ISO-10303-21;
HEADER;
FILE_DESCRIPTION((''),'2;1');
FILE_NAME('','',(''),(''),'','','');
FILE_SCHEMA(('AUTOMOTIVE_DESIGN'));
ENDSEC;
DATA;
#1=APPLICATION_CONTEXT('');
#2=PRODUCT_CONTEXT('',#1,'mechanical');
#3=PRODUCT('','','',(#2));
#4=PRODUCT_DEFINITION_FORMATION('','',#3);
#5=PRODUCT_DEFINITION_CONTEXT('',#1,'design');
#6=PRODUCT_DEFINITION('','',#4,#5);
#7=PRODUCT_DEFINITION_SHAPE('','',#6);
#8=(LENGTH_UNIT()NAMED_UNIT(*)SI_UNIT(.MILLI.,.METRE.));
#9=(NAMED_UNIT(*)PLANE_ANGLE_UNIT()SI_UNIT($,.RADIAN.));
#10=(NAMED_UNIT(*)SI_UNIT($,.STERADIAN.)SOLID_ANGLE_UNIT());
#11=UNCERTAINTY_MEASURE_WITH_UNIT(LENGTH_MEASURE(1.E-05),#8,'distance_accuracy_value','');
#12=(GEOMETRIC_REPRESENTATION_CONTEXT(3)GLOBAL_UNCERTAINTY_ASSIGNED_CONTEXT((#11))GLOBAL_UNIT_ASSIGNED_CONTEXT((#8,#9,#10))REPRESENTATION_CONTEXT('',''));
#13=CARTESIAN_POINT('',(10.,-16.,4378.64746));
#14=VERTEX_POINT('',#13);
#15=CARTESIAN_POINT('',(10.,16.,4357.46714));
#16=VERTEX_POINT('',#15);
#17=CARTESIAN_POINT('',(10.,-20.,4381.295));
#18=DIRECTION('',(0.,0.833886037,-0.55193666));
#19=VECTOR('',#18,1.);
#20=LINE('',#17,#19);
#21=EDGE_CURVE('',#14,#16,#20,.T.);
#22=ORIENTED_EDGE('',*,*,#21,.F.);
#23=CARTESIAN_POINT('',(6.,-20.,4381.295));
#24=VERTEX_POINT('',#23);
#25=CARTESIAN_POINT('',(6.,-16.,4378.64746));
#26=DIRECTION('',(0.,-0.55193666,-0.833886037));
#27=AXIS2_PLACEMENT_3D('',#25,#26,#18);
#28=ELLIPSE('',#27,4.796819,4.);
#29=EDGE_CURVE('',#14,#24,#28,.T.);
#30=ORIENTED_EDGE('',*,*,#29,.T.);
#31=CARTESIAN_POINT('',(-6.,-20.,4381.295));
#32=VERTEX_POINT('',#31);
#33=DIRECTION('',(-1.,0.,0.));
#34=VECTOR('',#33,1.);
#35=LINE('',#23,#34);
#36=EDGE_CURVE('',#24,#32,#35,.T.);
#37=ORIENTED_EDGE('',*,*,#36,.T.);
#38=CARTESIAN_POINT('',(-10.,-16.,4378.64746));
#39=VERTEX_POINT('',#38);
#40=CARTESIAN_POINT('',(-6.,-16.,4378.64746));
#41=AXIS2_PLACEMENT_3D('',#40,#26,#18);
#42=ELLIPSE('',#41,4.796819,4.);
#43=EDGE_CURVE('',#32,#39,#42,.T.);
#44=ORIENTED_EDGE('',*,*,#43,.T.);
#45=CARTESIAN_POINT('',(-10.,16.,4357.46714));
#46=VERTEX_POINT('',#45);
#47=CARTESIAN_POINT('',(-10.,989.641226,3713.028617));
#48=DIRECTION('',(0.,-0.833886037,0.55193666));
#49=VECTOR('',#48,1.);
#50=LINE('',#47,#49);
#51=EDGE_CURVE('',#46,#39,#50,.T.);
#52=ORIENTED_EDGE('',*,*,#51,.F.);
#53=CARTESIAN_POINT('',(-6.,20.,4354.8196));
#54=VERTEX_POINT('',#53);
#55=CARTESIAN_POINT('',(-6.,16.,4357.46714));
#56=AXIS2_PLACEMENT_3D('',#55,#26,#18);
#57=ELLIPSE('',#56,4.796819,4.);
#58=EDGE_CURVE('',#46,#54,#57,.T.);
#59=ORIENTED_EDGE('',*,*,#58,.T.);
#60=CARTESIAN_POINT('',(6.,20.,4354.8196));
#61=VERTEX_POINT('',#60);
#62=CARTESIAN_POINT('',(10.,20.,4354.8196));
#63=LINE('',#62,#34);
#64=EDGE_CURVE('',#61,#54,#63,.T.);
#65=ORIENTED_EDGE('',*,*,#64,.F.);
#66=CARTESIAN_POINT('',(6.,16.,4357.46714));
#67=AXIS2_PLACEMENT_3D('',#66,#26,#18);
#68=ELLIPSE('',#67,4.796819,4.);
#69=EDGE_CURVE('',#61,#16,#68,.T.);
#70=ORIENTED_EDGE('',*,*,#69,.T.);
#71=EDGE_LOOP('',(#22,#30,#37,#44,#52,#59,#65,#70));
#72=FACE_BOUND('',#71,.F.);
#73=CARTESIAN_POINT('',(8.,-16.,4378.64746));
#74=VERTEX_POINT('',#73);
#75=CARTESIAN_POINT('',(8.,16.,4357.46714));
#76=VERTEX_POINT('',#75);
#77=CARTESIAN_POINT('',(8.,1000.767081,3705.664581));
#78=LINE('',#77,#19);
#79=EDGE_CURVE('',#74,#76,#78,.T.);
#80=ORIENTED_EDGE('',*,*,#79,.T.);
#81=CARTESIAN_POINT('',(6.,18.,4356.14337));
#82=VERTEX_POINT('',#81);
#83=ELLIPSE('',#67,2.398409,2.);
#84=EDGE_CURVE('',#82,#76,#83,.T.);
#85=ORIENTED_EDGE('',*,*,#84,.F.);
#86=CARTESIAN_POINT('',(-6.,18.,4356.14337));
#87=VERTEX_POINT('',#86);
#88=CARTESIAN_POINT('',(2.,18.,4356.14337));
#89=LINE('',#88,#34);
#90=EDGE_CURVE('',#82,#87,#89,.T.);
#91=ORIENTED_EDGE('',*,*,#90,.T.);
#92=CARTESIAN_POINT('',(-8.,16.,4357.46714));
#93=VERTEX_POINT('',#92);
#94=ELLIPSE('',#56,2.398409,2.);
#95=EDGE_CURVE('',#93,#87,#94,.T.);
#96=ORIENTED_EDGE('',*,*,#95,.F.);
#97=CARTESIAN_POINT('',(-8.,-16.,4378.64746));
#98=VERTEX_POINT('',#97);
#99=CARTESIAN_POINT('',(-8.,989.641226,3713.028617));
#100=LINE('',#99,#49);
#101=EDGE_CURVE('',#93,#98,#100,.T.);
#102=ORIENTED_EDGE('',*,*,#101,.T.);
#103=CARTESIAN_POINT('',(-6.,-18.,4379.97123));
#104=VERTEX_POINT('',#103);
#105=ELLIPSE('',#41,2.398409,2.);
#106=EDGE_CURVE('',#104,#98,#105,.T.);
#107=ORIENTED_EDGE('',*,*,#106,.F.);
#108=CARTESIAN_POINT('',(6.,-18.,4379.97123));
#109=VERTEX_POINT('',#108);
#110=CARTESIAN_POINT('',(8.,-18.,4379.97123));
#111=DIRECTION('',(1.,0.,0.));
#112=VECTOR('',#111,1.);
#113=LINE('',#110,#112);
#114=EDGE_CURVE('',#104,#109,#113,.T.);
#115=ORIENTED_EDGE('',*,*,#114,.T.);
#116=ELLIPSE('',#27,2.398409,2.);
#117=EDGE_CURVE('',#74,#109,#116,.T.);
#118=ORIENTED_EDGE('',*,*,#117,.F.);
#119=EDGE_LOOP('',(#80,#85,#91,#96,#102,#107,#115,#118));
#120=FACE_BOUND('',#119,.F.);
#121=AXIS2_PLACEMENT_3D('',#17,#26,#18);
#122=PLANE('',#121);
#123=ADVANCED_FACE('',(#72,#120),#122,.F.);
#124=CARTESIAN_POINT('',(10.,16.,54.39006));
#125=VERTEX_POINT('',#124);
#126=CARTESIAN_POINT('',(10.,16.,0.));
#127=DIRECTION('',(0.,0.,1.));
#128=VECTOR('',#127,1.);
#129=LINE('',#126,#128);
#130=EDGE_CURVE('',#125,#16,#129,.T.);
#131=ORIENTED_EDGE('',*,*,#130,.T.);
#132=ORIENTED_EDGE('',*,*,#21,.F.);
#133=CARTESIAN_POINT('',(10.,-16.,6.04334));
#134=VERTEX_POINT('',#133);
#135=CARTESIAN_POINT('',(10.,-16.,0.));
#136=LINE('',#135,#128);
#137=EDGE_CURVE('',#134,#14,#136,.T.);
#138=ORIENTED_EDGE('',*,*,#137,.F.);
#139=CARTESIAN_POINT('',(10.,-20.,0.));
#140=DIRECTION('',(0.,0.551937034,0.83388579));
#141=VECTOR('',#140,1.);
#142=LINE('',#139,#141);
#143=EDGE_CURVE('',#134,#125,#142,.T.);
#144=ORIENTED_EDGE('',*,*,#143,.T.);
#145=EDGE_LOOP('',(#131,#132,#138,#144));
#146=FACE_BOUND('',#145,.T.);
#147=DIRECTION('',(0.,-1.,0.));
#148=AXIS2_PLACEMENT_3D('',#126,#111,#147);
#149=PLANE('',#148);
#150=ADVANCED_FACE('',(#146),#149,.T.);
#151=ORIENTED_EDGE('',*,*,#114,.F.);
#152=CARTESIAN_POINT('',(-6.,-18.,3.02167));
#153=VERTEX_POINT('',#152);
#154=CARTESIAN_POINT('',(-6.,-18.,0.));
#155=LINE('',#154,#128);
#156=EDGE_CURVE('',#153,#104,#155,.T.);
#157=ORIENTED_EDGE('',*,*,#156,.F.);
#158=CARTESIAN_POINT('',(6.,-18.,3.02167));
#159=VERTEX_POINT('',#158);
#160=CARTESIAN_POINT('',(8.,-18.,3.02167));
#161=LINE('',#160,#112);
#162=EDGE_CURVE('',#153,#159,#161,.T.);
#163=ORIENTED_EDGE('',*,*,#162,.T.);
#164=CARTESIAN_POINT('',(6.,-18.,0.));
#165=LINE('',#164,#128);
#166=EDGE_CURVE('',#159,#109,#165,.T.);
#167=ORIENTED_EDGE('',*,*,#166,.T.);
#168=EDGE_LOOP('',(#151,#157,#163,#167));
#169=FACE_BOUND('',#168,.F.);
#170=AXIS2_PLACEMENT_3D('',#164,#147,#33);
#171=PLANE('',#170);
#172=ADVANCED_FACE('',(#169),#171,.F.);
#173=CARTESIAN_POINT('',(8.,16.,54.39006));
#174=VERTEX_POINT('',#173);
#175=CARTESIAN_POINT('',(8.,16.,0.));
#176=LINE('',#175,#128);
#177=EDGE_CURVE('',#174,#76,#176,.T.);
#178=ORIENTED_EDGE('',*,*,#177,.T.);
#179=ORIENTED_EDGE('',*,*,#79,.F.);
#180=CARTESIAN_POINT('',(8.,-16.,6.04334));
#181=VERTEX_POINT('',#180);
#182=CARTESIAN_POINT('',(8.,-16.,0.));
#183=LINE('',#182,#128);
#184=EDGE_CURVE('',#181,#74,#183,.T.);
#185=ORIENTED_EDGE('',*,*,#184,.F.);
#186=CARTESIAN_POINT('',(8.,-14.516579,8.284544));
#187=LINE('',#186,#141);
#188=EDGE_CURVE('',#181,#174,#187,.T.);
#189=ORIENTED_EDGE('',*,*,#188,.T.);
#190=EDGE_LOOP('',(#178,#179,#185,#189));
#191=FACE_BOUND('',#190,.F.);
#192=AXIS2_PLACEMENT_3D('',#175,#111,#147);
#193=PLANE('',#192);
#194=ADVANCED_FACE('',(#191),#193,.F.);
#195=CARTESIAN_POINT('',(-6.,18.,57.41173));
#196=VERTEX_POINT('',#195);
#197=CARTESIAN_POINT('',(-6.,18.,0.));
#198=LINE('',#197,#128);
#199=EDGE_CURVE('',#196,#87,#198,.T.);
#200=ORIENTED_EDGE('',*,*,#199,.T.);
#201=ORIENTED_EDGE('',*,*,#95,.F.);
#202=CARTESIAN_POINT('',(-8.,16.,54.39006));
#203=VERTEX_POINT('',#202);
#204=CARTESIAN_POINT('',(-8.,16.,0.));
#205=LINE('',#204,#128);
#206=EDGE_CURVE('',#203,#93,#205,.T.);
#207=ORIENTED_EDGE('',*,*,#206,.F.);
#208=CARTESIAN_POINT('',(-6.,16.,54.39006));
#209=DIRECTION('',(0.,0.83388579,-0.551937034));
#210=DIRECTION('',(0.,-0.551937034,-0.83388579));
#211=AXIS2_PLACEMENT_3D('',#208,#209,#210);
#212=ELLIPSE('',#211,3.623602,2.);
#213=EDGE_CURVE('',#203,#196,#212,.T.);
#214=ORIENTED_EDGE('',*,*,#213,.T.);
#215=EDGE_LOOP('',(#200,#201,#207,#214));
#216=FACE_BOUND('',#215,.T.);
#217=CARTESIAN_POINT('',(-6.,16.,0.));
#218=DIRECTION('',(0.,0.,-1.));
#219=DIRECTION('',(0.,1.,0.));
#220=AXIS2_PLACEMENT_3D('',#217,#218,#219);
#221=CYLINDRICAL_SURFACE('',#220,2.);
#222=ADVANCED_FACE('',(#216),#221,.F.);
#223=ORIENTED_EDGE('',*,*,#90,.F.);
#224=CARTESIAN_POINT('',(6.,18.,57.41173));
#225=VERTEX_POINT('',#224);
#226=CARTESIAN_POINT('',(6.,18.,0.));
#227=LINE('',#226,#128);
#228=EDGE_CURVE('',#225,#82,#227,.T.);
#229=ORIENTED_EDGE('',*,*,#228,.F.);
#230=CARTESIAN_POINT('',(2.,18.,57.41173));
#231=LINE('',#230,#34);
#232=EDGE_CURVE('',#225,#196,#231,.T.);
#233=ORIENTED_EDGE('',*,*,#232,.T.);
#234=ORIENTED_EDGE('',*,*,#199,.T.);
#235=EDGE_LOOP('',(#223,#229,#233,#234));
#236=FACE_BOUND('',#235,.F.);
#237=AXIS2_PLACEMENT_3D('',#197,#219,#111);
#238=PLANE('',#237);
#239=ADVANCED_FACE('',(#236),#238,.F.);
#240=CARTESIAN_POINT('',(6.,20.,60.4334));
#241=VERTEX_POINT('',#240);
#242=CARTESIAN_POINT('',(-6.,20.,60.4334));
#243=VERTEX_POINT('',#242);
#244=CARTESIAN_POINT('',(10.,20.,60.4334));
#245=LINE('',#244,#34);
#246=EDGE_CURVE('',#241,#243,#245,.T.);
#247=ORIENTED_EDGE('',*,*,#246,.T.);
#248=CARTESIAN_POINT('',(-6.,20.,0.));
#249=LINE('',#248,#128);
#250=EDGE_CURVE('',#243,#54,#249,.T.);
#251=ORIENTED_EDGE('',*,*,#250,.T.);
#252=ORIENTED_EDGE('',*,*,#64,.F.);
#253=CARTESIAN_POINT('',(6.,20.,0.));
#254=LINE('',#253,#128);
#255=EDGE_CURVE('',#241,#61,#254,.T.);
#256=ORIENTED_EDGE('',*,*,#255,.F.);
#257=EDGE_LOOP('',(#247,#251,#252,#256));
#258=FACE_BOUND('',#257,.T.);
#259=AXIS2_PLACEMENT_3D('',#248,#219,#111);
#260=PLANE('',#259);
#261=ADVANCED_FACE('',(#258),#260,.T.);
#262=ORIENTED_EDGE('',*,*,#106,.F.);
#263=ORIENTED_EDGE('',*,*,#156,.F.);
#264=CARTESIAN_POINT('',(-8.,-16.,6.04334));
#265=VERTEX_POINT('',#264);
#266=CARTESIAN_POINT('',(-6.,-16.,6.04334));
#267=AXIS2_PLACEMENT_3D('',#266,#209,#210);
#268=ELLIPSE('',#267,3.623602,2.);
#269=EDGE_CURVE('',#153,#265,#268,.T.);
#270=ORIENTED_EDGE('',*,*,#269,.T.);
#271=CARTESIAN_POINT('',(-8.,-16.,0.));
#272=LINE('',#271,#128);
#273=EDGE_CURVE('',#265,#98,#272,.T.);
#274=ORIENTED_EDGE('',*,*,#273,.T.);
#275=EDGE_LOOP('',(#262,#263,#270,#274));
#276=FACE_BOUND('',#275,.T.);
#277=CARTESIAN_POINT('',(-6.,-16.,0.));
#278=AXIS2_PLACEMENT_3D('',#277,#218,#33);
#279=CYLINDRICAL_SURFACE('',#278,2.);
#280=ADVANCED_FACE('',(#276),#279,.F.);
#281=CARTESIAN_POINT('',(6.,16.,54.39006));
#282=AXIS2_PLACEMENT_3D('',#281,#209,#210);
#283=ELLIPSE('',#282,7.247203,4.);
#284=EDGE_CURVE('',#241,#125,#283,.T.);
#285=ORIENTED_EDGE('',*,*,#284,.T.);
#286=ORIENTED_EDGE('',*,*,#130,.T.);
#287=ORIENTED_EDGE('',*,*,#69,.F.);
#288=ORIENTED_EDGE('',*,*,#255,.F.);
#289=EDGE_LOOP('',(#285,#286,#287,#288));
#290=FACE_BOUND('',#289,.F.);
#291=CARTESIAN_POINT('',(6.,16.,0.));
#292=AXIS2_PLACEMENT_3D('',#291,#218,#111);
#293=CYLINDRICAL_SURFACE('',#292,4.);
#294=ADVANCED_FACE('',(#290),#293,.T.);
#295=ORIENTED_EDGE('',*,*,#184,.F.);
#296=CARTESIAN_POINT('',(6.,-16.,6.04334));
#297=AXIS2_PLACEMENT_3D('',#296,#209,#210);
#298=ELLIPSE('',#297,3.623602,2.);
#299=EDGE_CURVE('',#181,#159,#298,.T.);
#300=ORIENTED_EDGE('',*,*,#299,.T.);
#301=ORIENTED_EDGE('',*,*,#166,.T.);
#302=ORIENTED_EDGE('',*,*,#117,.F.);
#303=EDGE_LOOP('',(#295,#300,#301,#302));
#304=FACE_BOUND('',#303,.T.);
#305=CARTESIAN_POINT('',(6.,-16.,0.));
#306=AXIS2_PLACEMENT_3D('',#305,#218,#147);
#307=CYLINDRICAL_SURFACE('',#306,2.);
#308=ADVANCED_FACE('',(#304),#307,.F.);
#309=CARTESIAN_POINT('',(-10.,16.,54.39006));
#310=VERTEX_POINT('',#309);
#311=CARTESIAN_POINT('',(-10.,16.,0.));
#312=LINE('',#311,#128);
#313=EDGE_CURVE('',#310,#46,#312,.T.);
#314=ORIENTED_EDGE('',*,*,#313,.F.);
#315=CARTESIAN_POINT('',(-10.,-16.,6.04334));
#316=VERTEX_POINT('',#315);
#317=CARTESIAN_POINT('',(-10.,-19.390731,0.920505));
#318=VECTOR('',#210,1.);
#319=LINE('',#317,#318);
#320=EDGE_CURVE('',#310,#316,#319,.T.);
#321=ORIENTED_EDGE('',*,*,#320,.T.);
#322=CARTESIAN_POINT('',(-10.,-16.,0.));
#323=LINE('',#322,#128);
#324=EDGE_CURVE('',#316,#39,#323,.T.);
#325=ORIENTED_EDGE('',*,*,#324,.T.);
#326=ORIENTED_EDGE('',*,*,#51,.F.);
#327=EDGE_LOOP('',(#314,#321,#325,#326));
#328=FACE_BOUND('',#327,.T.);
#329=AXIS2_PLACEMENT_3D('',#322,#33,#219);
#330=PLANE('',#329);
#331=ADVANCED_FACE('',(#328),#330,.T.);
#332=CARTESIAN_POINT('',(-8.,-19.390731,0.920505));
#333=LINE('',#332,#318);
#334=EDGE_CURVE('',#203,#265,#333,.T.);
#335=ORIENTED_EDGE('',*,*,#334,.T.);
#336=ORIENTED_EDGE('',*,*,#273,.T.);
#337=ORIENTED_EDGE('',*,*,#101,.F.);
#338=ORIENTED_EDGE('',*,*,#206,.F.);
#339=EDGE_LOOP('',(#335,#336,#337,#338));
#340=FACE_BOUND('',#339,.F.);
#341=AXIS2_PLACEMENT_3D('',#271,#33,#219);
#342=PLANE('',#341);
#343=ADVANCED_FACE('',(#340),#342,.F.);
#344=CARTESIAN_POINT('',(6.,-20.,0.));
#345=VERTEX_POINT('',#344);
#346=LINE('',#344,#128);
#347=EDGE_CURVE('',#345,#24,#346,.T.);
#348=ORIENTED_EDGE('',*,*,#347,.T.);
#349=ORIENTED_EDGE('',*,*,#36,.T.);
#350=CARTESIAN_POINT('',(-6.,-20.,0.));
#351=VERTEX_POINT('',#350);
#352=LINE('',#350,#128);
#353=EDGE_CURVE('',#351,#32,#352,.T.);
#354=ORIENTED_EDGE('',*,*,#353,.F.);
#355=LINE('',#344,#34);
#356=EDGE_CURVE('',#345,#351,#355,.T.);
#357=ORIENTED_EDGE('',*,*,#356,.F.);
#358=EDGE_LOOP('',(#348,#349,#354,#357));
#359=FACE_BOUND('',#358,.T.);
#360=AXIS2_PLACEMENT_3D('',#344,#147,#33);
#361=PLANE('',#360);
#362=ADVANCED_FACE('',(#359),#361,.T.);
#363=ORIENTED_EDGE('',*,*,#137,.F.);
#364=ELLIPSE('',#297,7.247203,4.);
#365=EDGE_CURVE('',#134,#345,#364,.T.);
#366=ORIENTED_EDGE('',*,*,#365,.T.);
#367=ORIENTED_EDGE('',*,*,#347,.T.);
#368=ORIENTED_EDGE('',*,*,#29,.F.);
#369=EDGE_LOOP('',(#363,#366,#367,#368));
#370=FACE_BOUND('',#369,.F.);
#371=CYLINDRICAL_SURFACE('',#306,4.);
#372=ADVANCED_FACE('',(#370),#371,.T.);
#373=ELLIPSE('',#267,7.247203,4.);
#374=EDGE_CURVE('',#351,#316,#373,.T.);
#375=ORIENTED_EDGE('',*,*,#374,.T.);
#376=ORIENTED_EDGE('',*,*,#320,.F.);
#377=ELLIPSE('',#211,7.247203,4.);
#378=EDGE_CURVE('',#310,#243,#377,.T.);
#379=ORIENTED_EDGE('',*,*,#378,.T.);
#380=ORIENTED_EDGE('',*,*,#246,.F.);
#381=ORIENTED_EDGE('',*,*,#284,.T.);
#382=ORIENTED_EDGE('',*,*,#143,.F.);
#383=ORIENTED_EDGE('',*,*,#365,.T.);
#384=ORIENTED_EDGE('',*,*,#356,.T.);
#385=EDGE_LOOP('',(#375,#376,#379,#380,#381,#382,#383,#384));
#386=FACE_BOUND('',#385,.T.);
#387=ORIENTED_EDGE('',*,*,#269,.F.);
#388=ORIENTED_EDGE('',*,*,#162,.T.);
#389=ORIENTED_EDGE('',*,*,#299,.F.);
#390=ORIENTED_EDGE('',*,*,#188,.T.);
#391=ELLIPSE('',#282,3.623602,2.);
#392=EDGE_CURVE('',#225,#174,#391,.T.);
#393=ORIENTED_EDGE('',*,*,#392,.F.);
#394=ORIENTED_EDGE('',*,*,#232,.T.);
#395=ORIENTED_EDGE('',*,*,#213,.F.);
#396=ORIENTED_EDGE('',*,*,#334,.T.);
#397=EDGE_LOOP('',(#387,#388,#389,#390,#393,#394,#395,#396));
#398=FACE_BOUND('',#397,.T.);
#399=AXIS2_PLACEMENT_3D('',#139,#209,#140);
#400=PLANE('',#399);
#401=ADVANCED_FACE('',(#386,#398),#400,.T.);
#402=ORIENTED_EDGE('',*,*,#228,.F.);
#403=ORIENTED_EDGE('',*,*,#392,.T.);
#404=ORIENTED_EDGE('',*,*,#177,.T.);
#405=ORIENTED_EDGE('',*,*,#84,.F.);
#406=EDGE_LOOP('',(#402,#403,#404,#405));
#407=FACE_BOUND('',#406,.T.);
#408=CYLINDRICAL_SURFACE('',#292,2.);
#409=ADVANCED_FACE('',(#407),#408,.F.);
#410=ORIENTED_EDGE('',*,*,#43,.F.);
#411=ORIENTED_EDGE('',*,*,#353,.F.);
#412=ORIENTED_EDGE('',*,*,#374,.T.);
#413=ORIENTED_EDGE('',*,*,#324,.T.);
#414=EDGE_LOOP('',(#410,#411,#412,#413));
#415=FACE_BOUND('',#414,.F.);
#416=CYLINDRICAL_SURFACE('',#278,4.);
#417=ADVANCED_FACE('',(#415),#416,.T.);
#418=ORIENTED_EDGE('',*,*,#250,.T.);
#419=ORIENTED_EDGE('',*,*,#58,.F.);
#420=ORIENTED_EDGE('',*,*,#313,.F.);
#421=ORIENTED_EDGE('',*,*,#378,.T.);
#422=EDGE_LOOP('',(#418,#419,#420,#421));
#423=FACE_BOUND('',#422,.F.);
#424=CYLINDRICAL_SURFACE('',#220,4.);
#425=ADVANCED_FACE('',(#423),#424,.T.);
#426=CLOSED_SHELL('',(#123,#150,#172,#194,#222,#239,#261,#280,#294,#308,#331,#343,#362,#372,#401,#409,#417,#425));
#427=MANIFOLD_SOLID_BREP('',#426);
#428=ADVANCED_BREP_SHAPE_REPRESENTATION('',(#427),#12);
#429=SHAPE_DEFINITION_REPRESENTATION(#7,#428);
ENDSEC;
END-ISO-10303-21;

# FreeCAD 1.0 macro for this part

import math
import FreeCAD as App
import Part
import Sketcher

V = App.Vector
Q = App.Units.Quantity


def add_polygon(sketch, points):
    """Adds a closed chain of lines whose ends are joined by coincident constraints."""
    first, n = sketch.GeometryCount, len(points)
    for a, b in zip(points, points[1:] + points[:1]):
        sketch.addGeometry(Part.LineSegment(App.Vector(*a, 0), App.Vector(*b, 0)), False)
    for i in range(n):
        sketch.addConstraint(Sketcher.Constraint("Coincident", first + i, 2, first + (i + 1) % n, 1))

doc = App.newDocument("Part")
body = doc.addObject("PartDesign::Body", "Body")

# Sketch on XY plane
sketch1 = doc.addObject("Sketcher::SketchObject", "Sketch")
body.addObject(sketch1)
sketch1.AttachmentSupport = (doc.XY_Plane, [""])
sketch1.MapMode = "FlatFace"
sketch1.addGeometry(Part.LineSegment(V(-10, 16, 0), V(-10, -16, 0)), False)
sketch1.addGeometry(Part.ArcOfCircle(Part.Circle(V(-6, -16, 0), V(0, 0, 1), 4), math.radians(180), math.radians(270)), False)
sketch1.addGeometry(Part.LineSegment(V(-6, -20, 0), V(6, -20, 0)), False)
sketch1.addGeometry(Part.ArcOfCircle(Part.Circle(V(6, -16, 0), V(0, 0, 1), 4), math.radians(-90), math.radians(0)), False)
sketch1.addGeometry(Part.LineSegment(V(10, -16, 0), V(10, 16, 0)), False)
sketch1.addGeometry(Part.ArcOfCircle(Part.Circle(V(6, 16, 0), V(0, 0, 1), 4), math.radians(0), math.radians(90)), False)
sketch1.addGeometry(Part.LineSegment(V(6, 20, 0), V(-6, 20, 0)), False)
sketch1.addGeometry(Part.ArcOfCircle(Part.Circle(V(-6, 16, 0), V(0, 0, 1), 4), math.radians(90), math.radians(180)), False)
sketch1.addGeometry(Part.ArcOfCircle(Part.Circle(V(-6, 16, 0), V(0, 0, 1), 2), math.radians(90), math.radians(180)), False)
sketch1.addGeometry(Part.LineSegment(V(-6, 18, 0), V(6, 18, 0)), False)
sketch1.addGeometry(Part.ArcOfCircle(Part.Circle(V(6, 16, 0), V(0, 0, 1), 2), math.radians(0), math.radians(90)), False)
sketch1.addGeometry(Part.LineSegment(V(8, 16, 0), V(8, -16, 0)), False)
sketch1.addGeometry(Part.ArcOfCircle(Part.Circle(V(6, -16, 0), V(0, 0, 1), 2), math.radians(-90), math.radians(0)), False)
sketch1.addGeometry(Part.LineSegment(V(6, -18, 0), V(-6, -18, 0)), False)
sketch1.addGeometry(Part.ArcOfCircle(Part.Circle(V(-6, -16, 0), V(0, 0, 1), 2), math.radians(180), math.radians(270)), False)
sketch1.addGeometry(Part.LineSegment(V(-8, -16, 0), V(-8, 16, 0)), False)
sketch1.addConstraint(Sketcher.Constraint("Tangent", 0, 2, 1, 1))
sketch1.addConstraint(Sketcher.Constraint("Tangent", 1, 2, 2, 1))
sketch1.addConstraint(Sketcher.Constraint("Tangent", 2, 2, 3, 1))
sketch1.addConstraint(Sketcher.Constraint("Tangent", 3, 2, 4, 1))
sketch1.addConstraint(Sketcher.Constraint("Tangent", 4, 2, 5, 1))
sketch1.addConstraint(Sketcher.Constraint("Tangent", 5, 2, 6, 1))
sketch1.addConstraint(Sketcher.Constraint("Tangent", 6, 2, 7, 1))
sketch1.addConstraint(Sketcher.Constraint("Tangent", 7, 2, 0, 1))
sketch1.addConstraint(Sketcher.Constraint("Tangent", 8, 1, 9, 1))
sketch1.addConstraint(Sketcher.Constraint("Tangent", 9, 2, 10, 2))
sketch1.addConstraint(Sketcher.Constraint("Tangent", 10, 1, 11, 1))
sketch1.addConstraint(Sketcher.Constraint("Tangent", 11, 2, 12, 2))
sketch1.addConstraint(Sketcher.Constraint("Tangent", 12, 1, 13, 1))
sketch1.addConstraint(Sketcher.Constraint("Tangent", 13, 2, 14, 2))
sketch1.addConstraint(Sketcher.Constraint("Tangent", 14, 1, 15, 1))
sketch1.addConstraint(Sketcher.Constraint("Tangent", 15, 2, 8, 2))
sketch1.addConstraint(Sketcher.Constraint("Vertical", 0))
sketch1.addConstraint(Sketcher.Constraint("Horizontal", 2))
sketch1.addConstraint(Sketcher.Constraint("Vertical", 4))
sketch1.addConstraint(Sketcher.Constraint("Horizontal", 6))
sketch1.addConstraint(Sketcher.Constraint("Horizontal", 9))
sketch1.addConstraint(Sketcher.Constraint("Vertical", 11))
sketch1.addConstraint(Sketcher.Constraint("Horizontal", 13))
sketch1.addConstraint(Sketcher.Constraint("Vertical", 15))
sketch1.addConstraint(Sketcher.Constraint("Coincident", 8, 3, 7, 3))
sketch1.addConstraint(Sketcher.Constraint("Coincident", 10, 3, 5, 3))
sketch1.addConstraint(Sketcher.Constraint("Coincident", 12, 3, 3, 3))
sketch1.addConstraint(Sketcher.Constraint("Equal", 1, 3))
sketch1.addConstraint(Sketcher.Constraint("Equal", 3, 5))
sketch1.addConstraint(Sketcher.Constraint("Equal", 5, 7))
sketch1.addConstraint(Sketcher.Constraint("Equal", 12, 14))
sketch1.addConstraint(Sketcher.Constraint("Symmetric", 1, 3, 5, 3, -1, 1))
sketch1.addConstraint(Sketcher.Constraint("Radius", 1, Q("4 mm")))
sketch1.addConstraint(Sketcher.Constraint("Radius", 8, Q("2 mm")))
sketch1.addConstraint(Sketcher.Constraint("DistanceX", 0, 2, -1, 1, Q("10 mm")))
sketch1.addConstraint(Sketcher.Constraint("DistanceY", 1, 2, -1, 1, Q("20 mm")))
pad1 = doc.addObject("PartDesign::Pad", "Pad")
body.addObject(pad1)
pad1.Profile = sketch1
pad1.Length = 4381.295

# Sketch on YZ plane
sketch2 = doc.addObject("Sketcher::SketchObject", "Sketch001")
body.addObject(sketch2)
sketch2.AttachmentSupport = (doc.YZ_Plane, [""])
sketch2.MapMode = "FlatFace"
sketch2.AttachmentOffset = App.Placement(V(0, 0, 10), App.Rotation())
add_polygon(sketch2, [(20, 4381), (-20, 4381), (20, 4355)])  # lines 0-2
add_polygon(sketch2, [(20, 60), (-20, 0), (20, 0)])  # lines 3-5
sketch2.addConstraint(Sketcher.Constraint("Horizontal", 0))
sketch2.addConstraint(Sketcher.Constraint("Vertical", 2))
sketch2.addConstraint(Sketcher.Constraint("Horizontal", 4))
sketch2.addConstraint(Sketcher.Constraint("Vertical", 5))
sketch2.addConstraint(Sketcher.Constraint("Symmetric", 3, 2, 4, 2, -1, 1))
sketch2.addConstraint(Sketcher.Constraint("Perpendicular", 1, 3))
sketch2.addConstraint(Sketcher.Constraint("Vertical", 0, 2, 3, 2))
sketch2.addConstraint(Sketcher.Constraint("Vertical", 2, 2, 4, 2))
sketch2.addConstraint(Sketcher.Constraint("Angle", 1, Q("-33.5 deg")))
sketch2.addConstraint(Sketcher.Constraint("DistanceX", 0, 2, 0, 1, Q("40 mm")))
sketch2.addConstraint(Sketcher.Constraint("DistanceY", -1, 1, 0, 2, Q("4381.295 mm")))
pocket1 = doc.addObject("PartDesign::Pocket", "Pocket")
body.addObject(pocket1)
pocket1.Profile = sketch2
pocket1.Type = "ThroughAll"

doc.recompute()
